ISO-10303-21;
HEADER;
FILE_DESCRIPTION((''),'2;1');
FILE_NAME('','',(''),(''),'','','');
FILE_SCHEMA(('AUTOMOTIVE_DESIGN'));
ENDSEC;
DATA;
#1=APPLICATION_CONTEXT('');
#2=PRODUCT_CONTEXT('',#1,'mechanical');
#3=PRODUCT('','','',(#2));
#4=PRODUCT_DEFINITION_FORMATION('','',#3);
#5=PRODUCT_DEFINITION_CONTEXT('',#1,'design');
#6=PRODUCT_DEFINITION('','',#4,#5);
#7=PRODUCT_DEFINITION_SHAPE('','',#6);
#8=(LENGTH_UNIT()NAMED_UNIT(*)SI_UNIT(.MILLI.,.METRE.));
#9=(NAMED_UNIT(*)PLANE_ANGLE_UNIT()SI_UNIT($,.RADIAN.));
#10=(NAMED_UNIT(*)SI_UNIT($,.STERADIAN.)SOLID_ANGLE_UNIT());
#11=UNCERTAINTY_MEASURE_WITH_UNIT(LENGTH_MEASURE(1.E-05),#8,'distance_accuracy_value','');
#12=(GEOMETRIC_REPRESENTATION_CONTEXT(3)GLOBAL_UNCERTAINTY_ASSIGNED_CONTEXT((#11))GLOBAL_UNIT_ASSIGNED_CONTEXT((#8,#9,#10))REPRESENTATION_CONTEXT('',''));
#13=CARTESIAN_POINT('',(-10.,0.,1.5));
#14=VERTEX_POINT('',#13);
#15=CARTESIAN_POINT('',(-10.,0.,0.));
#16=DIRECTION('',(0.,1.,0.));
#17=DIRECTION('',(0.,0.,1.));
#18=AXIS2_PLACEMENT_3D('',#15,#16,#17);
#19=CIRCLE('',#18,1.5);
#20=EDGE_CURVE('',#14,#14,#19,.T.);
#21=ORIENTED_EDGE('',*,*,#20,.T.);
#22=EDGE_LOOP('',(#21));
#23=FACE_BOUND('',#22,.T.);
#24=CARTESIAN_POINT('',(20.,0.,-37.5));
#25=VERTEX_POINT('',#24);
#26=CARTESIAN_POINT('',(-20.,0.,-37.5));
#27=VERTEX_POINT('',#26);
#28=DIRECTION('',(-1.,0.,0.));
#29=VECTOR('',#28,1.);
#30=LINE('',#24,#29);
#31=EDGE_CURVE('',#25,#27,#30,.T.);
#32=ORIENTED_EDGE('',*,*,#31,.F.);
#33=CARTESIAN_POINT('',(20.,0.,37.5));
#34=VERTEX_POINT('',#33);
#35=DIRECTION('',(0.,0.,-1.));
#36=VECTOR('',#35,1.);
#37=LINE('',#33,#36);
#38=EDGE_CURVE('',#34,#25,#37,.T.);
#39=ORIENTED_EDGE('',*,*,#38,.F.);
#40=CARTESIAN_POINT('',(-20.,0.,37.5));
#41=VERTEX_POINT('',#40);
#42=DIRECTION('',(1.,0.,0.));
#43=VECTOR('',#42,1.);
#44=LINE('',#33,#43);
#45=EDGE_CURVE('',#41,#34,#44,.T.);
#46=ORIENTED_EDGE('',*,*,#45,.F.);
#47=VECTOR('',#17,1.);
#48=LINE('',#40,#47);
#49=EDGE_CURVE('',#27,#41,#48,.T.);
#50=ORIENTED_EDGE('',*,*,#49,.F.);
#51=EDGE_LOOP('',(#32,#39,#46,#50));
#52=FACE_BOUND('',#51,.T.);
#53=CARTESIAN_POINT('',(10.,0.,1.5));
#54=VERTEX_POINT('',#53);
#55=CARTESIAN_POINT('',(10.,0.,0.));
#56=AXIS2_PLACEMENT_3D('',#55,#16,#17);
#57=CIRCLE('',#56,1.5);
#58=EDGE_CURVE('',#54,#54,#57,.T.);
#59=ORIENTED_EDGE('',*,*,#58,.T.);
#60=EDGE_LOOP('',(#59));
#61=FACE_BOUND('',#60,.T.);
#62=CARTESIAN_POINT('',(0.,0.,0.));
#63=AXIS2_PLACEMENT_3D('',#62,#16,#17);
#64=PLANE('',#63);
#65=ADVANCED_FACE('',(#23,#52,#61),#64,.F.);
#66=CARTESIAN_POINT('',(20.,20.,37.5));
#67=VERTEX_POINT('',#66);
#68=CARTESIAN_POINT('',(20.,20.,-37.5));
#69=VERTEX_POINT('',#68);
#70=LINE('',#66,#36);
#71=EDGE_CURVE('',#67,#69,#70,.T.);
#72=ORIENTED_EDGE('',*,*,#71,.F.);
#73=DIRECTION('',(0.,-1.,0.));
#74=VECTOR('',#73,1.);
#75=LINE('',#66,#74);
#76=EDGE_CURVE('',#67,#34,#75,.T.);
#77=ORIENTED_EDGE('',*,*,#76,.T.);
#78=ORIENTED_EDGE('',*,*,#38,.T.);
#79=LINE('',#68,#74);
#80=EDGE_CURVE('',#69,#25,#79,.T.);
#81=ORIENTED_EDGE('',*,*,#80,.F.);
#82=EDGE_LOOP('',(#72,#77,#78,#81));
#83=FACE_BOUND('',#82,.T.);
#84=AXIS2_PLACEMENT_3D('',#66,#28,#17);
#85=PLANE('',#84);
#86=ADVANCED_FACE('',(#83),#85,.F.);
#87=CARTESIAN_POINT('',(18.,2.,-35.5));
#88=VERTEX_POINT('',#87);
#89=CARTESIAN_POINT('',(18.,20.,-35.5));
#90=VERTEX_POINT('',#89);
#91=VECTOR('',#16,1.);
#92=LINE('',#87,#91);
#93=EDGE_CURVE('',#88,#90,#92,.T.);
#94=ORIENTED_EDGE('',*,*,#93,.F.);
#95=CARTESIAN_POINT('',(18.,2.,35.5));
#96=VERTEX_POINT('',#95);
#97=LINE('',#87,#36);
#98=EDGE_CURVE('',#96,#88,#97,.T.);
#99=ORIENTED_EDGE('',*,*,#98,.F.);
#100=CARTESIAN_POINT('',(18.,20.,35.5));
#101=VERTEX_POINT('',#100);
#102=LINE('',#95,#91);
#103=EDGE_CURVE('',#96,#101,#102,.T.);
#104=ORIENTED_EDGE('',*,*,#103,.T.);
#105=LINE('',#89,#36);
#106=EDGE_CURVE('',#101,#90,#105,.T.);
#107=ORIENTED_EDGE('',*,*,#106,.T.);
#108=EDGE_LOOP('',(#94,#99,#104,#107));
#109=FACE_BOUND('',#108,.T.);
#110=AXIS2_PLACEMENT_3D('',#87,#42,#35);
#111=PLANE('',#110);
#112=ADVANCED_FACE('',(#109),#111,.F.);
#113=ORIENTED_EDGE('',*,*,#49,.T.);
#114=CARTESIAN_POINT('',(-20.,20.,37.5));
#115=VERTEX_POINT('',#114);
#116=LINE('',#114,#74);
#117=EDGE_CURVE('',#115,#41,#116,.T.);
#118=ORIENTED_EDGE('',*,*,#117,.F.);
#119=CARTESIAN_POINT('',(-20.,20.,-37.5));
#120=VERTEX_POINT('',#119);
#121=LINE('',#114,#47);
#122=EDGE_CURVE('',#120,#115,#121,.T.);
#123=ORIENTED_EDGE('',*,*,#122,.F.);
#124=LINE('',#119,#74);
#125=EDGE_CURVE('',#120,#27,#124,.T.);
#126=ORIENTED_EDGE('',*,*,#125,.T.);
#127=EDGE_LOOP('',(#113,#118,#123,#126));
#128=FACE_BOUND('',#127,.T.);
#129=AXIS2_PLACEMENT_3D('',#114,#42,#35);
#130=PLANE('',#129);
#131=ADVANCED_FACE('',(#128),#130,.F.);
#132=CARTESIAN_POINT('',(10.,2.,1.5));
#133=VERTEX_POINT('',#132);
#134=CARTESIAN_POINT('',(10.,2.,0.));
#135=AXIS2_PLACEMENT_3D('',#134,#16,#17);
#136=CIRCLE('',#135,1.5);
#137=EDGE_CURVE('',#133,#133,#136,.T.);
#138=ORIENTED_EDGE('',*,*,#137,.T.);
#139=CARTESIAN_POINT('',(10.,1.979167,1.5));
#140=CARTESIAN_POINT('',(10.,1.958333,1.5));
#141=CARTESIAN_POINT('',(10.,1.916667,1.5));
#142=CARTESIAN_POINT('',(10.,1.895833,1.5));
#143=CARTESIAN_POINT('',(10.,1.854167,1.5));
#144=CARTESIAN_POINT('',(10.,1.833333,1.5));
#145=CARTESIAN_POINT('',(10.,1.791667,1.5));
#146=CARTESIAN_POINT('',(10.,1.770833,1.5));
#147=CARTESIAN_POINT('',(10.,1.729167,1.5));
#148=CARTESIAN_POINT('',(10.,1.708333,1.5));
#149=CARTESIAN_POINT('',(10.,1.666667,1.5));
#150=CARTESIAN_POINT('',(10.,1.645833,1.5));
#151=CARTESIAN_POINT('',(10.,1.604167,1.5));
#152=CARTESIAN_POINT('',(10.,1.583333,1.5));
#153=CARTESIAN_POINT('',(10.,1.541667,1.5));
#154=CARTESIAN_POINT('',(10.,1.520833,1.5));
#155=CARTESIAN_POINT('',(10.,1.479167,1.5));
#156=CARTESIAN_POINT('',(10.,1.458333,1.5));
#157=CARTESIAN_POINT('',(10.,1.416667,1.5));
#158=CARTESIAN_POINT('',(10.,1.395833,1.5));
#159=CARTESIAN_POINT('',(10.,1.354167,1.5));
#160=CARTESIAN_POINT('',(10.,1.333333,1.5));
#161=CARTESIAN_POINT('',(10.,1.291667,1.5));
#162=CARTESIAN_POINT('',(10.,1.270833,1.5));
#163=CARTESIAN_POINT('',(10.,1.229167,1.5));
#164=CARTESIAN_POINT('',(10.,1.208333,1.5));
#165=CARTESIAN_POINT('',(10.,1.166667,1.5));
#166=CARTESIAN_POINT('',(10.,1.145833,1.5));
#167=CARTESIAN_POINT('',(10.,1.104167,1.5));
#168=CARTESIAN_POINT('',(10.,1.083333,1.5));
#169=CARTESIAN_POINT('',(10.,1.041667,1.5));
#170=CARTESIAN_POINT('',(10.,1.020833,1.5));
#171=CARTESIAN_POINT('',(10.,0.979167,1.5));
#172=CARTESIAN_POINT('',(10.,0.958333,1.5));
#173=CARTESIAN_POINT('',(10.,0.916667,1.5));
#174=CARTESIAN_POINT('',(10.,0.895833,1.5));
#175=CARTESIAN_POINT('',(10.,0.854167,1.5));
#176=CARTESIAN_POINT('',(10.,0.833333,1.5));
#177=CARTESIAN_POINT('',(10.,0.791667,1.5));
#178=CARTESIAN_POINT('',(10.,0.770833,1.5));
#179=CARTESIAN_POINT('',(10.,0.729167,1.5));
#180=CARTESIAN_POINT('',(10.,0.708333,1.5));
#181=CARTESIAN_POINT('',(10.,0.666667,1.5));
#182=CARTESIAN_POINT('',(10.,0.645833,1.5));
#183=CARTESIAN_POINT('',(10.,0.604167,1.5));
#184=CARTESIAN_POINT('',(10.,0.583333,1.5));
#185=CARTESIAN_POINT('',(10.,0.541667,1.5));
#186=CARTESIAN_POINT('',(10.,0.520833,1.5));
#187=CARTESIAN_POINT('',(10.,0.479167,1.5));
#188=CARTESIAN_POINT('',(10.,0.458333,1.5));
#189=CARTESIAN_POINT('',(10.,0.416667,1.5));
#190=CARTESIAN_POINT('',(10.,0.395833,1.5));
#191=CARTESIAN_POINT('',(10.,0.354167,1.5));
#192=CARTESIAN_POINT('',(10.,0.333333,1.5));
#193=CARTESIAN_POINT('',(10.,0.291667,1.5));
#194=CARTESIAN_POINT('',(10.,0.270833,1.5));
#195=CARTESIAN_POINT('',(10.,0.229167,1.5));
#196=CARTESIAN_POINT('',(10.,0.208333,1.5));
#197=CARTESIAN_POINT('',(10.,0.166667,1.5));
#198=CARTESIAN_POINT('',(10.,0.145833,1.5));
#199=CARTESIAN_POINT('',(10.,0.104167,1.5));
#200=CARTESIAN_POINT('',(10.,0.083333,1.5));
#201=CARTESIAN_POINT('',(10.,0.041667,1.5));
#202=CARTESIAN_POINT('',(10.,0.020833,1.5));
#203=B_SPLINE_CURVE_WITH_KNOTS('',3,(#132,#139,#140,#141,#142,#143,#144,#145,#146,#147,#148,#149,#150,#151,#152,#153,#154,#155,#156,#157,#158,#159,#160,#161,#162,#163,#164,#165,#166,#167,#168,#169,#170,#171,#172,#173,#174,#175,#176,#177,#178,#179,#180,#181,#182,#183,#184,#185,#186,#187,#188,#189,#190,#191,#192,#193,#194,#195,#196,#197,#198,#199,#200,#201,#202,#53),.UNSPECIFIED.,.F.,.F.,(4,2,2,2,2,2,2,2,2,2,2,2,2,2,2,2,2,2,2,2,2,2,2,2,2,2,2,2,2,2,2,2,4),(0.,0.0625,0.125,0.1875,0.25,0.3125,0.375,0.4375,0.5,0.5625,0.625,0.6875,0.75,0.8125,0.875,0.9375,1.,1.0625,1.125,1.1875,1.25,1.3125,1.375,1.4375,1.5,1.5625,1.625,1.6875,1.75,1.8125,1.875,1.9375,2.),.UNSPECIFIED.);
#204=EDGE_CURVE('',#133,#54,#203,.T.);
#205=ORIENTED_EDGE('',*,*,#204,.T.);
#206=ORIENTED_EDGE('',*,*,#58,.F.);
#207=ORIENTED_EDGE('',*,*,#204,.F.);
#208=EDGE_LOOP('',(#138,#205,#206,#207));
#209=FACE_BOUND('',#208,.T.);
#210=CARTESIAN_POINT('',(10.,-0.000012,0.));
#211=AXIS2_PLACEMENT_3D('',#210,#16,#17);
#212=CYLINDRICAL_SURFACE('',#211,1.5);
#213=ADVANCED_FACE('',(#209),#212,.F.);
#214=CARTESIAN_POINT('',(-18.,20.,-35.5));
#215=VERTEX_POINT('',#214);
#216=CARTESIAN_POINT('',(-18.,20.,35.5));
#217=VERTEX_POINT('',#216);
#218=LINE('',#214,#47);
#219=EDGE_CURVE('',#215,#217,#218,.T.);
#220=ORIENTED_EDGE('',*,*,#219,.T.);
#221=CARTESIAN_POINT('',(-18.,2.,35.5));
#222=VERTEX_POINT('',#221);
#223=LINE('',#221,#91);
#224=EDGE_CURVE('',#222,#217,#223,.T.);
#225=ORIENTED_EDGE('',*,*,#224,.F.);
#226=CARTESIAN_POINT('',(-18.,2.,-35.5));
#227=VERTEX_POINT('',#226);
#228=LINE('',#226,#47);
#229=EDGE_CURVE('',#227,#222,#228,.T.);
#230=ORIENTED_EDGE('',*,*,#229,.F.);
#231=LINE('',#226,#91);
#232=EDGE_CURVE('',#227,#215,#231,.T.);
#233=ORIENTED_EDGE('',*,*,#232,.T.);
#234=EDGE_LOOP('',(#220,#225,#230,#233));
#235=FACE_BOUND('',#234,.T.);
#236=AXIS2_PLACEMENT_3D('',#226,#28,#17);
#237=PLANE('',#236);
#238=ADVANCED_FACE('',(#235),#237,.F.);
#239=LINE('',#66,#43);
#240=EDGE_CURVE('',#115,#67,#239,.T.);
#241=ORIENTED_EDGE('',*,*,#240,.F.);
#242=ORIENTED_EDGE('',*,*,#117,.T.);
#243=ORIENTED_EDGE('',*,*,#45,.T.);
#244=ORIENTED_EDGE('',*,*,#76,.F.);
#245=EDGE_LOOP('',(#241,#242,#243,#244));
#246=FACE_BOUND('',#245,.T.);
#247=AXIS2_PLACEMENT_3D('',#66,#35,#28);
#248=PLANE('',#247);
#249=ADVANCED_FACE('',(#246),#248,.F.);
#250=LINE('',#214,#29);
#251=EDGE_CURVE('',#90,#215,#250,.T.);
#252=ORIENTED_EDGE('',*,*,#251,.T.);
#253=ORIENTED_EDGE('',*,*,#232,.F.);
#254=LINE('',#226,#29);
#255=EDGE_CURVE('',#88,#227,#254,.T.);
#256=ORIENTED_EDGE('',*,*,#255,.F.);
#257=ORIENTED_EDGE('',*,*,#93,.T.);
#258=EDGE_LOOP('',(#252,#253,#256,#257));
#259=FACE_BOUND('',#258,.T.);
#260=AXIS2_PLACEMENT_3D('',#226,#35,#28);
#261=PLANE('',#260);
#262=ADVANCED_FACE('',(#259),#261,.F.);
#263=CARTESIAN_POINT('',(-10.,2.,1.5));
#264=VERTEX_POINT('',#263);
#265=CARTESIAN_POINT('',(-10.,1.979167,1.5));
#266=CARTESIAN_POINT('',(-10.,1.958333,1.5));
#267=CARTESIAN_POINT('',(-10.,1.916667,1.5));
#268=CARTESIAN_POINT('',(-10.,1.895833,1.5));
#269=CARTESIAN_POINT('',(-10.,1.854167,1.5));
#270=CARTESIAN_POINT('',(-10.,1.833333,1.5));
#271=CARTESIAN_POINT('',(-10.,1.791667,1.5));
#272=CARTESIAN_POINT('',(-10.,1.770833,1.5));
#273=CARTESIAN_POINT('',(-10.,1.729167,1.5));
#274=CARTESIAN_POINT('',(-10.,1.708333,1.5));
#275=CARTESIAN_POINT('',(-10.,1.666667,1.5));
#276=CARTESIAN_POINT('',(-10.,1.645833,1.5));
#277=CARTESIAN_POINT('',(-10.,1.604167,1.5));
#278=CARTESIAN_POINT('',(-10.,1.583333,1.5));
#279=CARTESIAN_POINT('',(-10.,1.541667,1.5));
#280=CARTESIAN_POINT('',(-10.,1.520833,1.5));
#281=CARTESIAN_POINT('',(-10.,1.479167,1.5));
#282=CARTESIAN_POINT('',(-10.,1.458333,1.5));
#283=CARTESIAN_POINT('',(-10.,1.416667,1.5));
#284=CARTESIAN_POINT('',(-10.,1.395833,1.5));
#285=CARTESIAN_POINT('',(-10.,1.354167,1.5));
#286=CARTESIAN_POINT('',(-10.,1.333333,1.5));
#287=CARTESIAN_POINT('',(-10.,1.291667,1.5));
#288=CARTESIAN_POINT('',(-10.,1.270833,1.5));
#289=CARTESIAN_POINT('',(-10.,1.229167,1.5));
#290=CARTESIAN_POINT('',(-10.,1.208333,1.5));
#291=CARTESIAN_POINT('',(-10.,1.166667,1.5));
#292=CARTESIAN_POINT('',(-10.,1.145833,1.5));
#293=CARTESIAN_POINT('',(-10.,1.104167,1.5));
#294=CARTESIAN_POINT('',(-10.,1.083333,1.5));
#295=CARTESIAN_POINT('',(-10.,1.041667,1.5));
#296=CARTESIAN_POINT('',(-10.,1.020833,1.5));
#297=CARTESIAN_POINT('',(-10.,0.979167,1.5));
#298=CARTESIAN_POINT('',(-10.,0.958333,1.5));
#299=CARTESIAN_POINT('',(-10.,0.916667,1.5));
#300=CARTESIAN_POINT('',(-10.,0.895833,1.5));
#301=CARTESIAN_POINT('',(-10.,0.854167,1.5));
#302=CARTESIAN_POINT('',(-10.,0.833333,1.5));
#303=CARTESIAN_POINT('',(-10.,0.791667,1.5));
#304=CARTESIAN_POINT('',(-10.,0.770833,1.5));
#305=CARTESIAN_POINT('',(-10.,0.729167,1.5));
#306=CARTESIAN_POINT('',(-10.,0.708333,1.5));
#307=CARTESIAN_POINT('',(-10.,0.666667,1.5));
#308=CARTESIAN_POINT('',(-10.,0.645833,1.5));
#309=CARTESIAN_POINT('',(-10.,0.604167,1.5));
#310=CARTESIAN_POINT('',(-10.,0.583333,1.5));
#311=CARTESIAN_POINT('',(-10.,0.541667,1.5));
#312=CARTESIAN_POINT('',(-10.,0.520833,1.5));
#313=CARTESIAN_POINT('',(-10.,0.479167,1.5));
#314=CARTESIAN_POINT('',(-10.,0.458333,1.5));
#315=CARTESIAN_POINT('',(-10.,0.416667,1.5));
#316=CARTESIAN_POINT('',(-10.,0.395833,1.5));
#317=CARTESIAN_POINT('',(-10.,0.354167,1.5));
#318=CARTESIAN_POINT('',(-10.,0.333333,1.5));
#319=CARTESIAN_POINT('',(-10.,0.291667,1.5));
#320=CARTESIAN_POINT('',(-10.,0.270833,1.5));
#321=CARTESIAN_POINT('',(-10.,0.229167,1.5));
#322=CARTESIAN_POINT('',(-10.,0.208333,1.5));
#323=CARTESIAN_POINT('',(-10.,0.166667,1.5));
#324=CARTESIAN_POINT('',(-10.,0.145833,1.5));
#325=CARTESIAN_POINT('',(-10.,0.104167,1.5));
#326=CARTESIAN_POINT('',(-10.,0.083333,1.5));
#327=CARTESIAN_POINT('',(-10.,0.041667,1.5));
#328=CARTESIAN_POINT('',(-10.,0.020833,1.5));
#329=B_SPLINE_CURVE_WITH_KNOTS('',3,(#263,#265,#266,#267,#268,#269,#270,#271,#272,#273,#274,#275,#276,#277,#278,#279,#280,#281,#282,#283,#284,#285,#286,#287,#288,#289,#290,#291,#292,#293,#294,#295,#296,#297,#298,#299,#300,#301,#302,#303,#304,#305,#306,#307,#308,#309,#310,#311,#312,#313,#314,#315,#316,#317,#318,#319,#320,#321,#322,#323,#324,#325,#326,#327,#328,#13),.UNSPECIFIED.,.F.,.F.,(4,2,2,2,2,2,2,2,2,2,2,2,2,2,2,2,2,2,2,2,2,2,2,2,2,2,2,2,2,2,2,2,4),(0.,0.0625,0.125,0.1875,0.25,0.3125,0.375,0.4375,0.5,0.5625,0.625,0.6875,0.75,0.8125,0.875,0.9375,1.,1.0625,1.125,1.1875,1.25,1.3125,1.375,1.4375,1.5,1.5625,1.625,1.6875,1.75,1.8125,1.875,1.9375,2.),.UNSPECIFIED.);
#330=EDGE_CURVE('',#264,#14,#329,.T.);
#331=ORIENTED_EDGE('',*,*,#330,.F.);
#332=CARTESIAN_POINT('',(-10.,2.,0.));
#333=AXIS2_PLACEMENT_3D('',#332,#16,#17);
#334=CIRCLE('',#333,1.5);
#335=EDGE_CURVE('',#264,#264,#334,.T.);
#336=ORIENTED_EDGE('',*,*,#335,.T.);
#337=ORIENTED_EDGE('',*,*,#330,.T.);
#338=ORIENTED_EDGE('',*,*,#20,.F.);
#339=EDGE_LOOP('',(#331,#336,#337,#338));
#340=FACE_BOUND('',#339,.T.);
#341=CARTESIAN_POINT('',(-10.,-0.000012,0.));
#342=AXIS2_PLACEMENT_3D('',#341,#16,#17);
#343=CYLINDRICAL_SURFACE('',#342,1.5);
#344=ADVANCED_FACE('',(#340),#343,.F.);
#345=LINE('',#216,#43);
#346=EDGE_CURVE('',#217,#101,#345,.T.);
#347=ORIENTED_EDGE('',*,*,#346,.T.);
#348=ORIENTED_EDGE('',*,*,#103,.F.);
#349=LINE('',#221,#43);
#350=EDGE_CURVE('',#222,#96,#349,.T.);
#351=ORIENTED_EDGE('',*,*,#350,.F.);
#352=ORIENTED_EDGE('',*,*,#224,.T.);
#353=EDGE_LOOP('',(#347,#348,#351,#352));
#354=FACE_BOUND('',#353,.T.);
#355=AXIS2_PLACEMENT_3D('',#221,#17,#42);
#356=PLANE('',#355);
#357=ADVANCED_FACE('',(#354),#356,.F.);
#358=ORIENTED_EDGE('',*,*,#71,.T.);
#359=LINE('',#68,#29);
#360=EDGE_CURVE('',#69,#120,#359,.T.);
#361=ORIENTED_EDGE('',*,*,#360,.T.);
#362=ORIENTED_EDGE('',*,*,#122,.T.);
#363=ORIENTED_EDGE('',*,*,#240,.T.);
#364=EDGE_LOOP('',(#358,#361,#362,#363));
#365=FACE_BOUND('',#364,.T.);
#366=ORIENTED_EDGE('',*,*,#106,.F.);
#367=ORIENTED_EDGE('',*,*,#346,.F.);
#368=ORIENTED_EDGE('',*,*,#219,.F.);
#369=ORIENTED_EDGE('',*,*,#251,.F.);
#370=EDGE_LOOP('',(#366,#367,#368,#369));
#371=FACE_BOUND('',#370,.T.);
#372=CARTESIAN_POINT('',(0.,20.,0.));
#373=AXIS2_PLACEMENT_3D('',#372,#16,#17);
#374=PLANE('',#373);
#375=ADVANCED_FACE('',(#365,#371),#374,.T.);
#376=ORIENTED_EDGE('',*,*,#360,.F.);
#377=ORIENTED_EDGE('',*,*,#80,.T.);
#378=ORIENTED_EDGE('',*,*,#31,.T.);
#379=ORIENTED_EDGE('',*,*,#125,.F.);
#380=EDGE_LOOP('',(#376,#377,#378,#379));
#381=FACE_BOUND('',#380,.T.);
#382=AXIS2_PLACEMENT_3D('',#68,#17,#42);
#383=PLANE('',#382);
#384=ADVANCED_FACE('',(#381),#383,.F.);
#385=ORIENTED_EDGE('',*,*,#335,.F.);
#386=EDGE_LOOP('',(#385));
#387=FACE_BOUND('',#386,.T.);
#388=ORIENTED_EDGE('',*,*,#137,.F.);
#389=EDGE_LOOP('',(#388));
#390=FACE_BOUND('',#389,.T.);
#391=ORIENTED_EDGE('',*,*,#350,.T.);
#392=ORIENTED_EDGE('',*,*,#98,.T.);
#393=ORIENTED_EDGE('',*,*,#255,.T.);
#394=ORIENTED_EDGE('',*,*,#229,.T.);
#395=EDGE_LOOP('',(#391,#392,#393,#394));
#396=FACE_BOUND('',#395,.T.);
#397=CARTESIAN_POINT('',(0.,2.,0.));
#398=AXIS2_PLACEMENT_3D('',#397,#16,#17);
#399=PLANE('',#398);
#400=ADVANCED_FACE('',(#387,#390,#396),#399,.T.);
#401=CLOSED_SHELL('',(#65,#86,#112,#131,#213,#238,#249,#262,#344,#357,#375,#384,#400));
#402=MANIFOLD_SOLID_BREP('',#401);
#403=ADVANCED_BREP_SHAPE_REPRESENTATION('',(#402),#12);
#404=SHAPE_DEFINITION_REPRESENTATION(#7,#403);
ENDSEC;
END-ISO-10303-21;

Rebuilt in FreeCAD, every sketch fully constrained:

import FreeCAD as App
import Part
import Sketcher
Q = App.Units.Quantity


def add_polygon(sketch, points):
    """Adds a closed chain of lines whose ends are joined by coincident constraints."""
    first, n = sketch.GeometryCount, len(points)
    for a, b in zip(points, points[1:] + points[:1]):
        sketch.addGeometry(Part.LineSegment(App.Vector(*a, 0), App.Vector(*b, 0)), False)
    for i in range(n):
        sketch.addConstraint(Sketcher.Constraint("Coincident", first + i, 2, first + (i + 1) % n, 1))

doc = App.newDocument("Part")
body = doc.addObject("PartDesign::Body", "Body")

sketch1 = body.newObject("Sketcher::SketchObject", "Sketch")
sketch1.AttachmentSupport = (doc.getObject("XZ_Plane"), [""])
sketch1.MapMode = "FlatFace"
add_polygon(sketch1, [(-20, -38), (-20, 38), (20, 38), (20, -38)])
sketch1.addConstraint([
    Sketcher.Constraint("Vertical", 0),
    Sketcher.Constraint("Horizontal", 1),
    Sketcher.Constraint("Vertical", 2),
    Sketcher.Constraint("Horizontal", 3),
    Sketcher.Constraint("Symmetric", 0, 2, 2, 2, -1, 1),
    Sketcher.Constraint("DistanceX", 1, 1, 1, 2, Q("40 mm")),
    Sketcher.Constraint("DistanceY", 0, 1, 0, 2, Q("75 mm")),
])
pad1 = body.newObject("PartDesign::Pad", "Pad")
pad1.Profile = sketch1
pad1.Length = 20
pad1.Reversed = True

sketch2 = body.newObject("Sketcher::SketchObject", "Sketch001")
sketch2.AttachmentSupport = (doc.getObject("XZ_Plane"), [""])
sketch2.MapMode = "FlatFace"
sketch2.AttachmentOffset = App.Placement(App.Vector(0, 0, -20), App.Rotation())
add_polygon(sketch2, [(-18, -36), (-18, 36), (18, 36), (18, -36)])
sketch2.addConstraint([
    Sketcher.Constraint("Vertical", 0),
    Sketcher.Constraint("Horizontal", 1),
    Sketcher.Constraint("Vertical", 2),
    Sketcher.Constraint("Horizontal", 3),
    Sketcher.Constraint("Symmetric", 0, 2, 2, 2, -1, 1),
    Sketcher.Constraint("DistanceX", 1, 1, 1, 2, Q("36 mm")),
    Sketcher.Constraint("DistanceY", 0, 1, 0, 2, Q("71 mm")),
])
pocket1 = body.newObject("PartDesign::Pocket", "Pocket")
pocket1.Profile = sketch2
pocket1.Length = 18
pocket1.Reversed = True

sketch3 = body.newObject("Sketcher::SketchObject", "Sketch002")
sketch3.AttachmentSupport = (doc.getObject("XZ_Plane"), [""])
sketch3.MapMode = "FlatFace"
sketch3.addGeometry([
    Part.Circle(App.Vector(-10, 0, 0), App.Vector(0, 0, 1), 1.5),
    Part.Circle(App.Vector(10, 0, 0), App.Vector(0, 0, 1), 1.5),
], False)
sketch3.addConstraint([
    Sketcher.Constraint("Equal", 0, 1),
    Sketcher.Constraint("Symmetric", 0, 3, 1, 3, -1, 1),
    Sketcher.Constraint("PointOnObject", 0, 3, -1),
    Sketcher.Constraint("Diameter", 0, Q("3 mm")),
    Sketcher.Constraint("DistanceX", 0, 3, -1, 1, Q("10 mm")),
])
pocket2 = body.newObject("PartDesign::Pocket", "Pocket001")
pocket2.Profile = sketch3
pocket2.Type = "ThroughAll"
pocket2.Midplane = True

doc.recompute()
